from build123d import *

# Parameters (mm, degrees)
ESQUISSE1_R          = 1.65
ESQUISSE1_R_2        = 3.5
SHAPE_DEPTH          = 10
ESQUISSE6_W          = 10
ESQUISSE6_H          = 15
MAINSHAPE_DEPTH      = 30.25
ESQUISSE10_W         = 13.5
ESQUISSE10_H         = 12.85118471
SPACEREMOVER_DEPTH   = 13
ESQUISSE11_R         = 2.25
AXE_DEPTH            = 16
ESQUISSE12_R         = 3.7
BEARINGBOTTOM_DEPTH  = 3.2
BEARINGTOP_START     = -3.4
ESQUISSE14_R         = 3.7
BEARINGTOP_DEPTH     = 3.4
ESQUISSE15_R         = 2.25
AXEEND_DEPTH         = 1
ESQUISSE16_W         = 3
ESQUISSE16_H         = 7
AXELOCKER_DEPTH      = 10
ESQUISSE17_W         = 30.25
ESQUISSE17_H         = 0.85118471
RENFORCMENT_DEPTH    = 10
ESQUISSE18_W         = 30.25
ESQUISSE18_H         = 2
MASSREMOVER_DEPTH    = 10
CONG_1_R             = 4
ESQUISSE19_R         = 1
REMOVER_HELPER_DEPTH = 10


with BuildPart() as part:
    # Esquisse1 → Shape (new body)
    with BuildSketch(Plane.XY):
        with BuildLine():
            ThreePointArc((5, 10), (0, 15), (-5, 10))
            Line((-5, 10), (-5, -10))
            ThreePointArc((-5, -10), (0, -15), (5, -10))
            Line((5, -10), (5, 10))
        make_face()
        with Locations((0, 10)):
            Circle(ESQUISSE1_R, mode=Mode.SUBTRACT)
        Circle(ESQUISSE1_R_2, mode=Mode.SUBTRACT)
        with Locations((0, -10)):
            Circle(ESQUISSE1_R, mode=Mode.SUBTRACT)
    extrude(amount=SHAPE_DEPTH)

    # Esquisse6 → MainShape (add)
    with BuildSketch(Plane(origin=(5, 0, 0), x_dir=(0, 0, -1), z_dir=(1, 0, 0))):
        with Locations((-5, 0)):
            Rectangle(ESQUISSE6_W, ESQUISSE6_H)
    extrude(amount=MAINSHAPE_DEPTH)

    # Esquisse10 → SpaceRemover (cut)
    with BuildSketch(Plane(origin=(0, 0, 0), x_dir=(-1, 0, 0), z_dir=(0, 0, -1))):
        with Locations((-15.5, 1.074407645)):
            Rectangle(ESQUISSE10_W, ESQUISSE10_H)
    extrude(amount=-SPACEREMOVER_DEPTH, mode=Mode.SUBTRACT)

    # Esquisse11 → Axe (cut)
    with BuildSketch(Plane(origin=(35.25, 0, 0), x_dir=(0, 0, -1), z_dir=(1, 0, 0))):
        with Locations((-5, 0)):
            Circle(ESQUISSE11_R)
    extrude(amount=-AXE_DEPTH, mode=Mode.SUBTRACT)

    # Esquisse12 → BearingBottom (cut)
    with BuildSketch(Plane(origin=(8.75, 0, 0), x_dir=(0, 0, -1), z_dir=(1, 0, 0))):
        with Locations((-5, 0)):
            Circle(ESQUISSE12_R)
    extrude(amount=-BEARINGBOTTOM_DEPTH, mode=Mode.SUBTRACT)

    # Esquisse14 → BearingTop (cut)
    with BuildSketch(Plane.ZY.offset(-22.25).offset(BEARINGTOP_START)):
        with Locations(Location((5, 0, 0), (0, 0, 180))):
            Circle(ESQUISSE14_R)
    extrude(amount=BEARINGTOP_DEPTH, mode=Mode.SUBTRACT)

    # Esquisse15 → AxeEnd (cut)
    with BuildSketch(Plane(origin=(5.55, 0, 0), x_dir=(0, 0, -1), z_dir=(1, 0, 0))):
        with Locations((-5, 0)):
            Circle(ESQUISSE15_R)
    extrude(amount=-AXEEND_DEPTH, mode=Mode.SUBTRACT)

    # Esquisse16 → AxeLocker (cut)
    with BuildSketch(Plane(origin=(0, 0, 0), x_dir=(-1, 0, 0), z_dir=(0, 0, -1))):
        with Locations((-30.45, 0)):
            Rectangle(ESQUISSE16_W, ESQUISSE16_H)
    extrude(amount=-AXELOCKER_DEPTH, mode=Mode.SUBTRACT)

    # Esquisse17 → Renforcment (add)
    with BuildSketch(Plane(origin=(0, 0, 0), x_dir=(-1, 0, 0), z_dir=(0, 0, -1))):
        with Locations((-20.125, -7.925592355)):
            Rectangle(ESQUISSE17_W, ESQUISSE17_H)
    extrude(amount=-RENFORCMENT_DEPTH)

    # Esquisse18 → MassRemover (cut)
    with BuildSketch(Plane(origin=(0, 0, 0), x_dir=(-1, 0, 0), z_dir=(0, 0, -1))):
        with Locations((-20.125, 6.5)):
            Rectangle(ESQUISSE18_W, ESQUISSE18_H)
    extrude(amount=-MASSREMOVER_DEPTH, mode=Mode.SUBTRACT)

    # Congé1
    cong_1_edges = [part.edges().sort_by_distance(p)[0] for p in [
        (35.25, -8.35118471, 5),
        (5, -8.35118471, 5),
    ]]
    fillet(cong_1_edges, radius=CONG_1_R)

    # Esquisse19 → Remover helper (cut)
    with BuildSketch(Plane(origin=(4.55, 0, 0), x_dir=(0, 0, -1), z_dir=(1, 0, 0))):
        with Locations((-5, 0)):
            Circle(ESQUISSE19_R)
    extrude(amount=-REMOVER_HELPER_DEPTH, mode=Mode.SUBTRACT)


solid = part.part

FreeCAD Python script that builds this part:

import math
import FreeCAD as App
import Part
import Sketcher
Q = App.Units.Quantity


def edges_at(feature, points):
    """Names of the edges that pass closest to the given points."""
    edges = feature.Shape.Edges
    near = lambda p: min(range(len(edges)), key=lambda i: edges[i].distToShape(Part.Vertex(*p))[0])
    return sorted({f"Edge{near(p) + 1}" for p in points})

doc = App.newDocument("Part")
body = doc.addObject("PartDesign::Body", "Body")

sketch1 = body.newObject("Sketcher::SketchObject", "Sketch")
sketch1.AttachmentSupport = (doc.getObject("XY_Plane"), [""])
sketch1.MapMode = "FlatFace"
sketch1.addGeometry(Part.ArcOfCircle(Part.Circle(App.Vector(0, 10, 0), App.Vector(0, 0, 1), 5), math.radians(0), math.radians(180)), False)
sketch1.addGeometry(Part.LineSegment(App.Vector(-5, 10, 0), App.Vector(-5, -10, 0)), False)
sketch1.addGeometry(Part.ArcOfCircle(Part.Circle(App.Vector(0, -10, 0), App.Vector(0, 0, 1), 5), math.radians(180), math.radians(360)), False)
sketch1.addGeometry(Part.LineSegment(App.Vector(5, -10, 0), App.Vector(5, 10, 0)), False)
sketch1.addGeometry(Part.Circle(App.Vector(0, -10, 0), App.Vector(0, 0, 1), 1.65), False)
sketch1.addGeometry(Part.Circle(App.Vector(0, 0, 0), App.Vector(0, 0, 1), 3.5), False)
sketch1.addGeometry(Part.Circle(App.Vector(0, 10, 0), App.Vector(0, 0, 1), 1.65), False)
sketch1.addConstraint(Sketcher.Constraint("Tangent", 0, 2, 1, 1))
sketch1.addConstraint(Sketcher.Constraint("Tangent", 1, 2, 2, 1))
sketch1.addConstraint(Sketcher.Constraint("Tangent", 2, 2, 3, 1))
sketch1.addConstraint(Sketcher.Constraint("Tangent", 3, 2, 0, 1))
sketch1.addConstraint(Sketcher.Constraint("Vertical", 1))
sketch1.addConstraint(Sketcher.Constraint("Vertical", 3))
sketch1.addConstraint(Sketcher.Constraint("Coincident", 5, 3, -1, 1))
sketch1.addConstraint(Sketcher.Constraint("Coincident", 4, 3, 2, 3))
sketch1.addConstraint(Sketcher.Constraint("Coincident", 6, 3, 0, 3))
sketch1.addConstraint(Sketcher.Constraint("Equal", 4, 6))
sketch1.addConstraint(Sketcher.Constraint("Symmetric", 0, 3, 2, 3, -1, 1))
sketch1.addConstraint(Sketcher.Constraint("Diameter", 5, Q("7 mm")))
sketch1.addConstraint(Sketcher.Constraint("Radius", 0, Q("5 mm")))
sketch1.addConstraint(Sketcher.Constraint("Diameter", 4, Q("3.3 mm")))
sketch1.addConstraint(Sketcher.Constraint("DistanceY", 1, 2, 1, 1, Q("20 mm")))
pad1 = body.newObject("PartDesign::Pad", "Pad")
pad1.Profile = sketch1
pad1.Length = 10

sketch2 = body.newObject("Sketcher::SketchObject", "Sketch001")
sketch2.AttachmentSupport = (doc.getObject("YZ_Plane"), [""])
sketch2.MapMode = "FlatFace"
sketch2.AttachmentOffset = App.Placement(App.Vector(0, 0, 5), App.Rotation())
sketch2.addGeometry(Part.LineSegment(App.Vector(7.5, 10, 0), App.Vector(-7.5, 10, 0)), False)
sketch2.addGeometry(Part.LineSegment(App.Vector(-7.5, 10, 0), App.Vector(-7.5, 0, 0)), False)
sketch2.addGeometry(Part.LineSegment(App.Vector(-7.5, 0, 0), App.Vector(7.5, 0, 0)), False)
sketch2.addGeometry(Part.LineSegment(App.Vector(7.5, 0, 0), App.Vector(7.5, 10, 0)), False)
sketch2.addConstraint(Sketcher.Constraint("Coincident", 0, 2, 1, 1))
sketch2.addConstraint(Sketcher.Constraint("Coincident", 1, 2, 2, 1))
sketch2.addConstraint(Sketcher.Constraint("Coincident", 2, 2, 3, 1))
sketch2.addConstraint(Sketcher.Constraint("Coincident", 3, 2, 0, 1))
sketch2.addConstraint(Sketcher.Constraint("Horizontal", 0))
sketch2.addConstraint(Sketcher.Constraint("Vertical", 1))
sketch2.addConstraint(Sketcher.Constraint("Horizontal", 2))
sketch2.addConstraint(Sketcher.Constraint("Vertical", 3))
sketch2.addConstraint(Sketcher.Constraint("Symmetric", 1, 2, 2, 2, -1, 1))
sketch2.addConstraint(Sketcher.Constraint("DistanceX", 0, 2, 0, 1, Q("15 mm")))
sketch2.addConstraint(Sketcher.Constraint("DistanceY", 1, 2, 1, 1, Q("10 mm")))
pad2 = body.newObject("PartDesign::Pad", "Pad001")
pad2.Profile = sketch2
pad2.Length = 30.25

sketch3 = body.newObject("Sketcher::SketchObject", "Sketch002")
sketch3.AttachmentSupport = (doc.getObject("XY_Plane"), [""])
sketch3.MapMode = "FlatFace"
sketch3.addGeometry(Part.LineSegment(App.Vector(22.25, 7.5, 0), App.Vector(22.25, -5.351185, 0)), False)
sketch3.addGeometry(Part.LineSegment(App.Vector(22.25, -5.351185, 0), App.Vector(8.75, -5.351185, 0)), False)
sketch3.addGeometry(Part.LineSegment(App.Vector(8.75, -5.351185, 0), App.Vector(8.75, 7.5, 0)), False)
sketch3.addGeometry(Part.LineSegment(App.Vector(8.75, 7.5, 0), App.Vector(22.25, 7.5, 0)), False)
sketch3.addConstraint(Sketcher.Constraint("Coincident", 0, 2, 1, 1))
sketch3.addConstraint(Sketcher.Constraint("Coincident", 1, 2, 2, 1))
sketch3.addConstraint(Sketcher.Constraint("Coincident", 2, 2, 3, 1))
sketch3.addConstraint(Sketcher.Constraint("Coincident", 3, 2, 0, 1))
sketch3.addConstraint(Sketcher.Constraint("Vertical", 0))
sketch3.addConstraint(Sketcher.Constraint("Horizontal", 1))
sketch3.addConstraint(Sketcher.Constraint("Vertical", 2))
sketch3.addConstraint(Sketcher.Constraint("Horizontal", 3))
sketch3.addConstraint(Sketcher.Constraint("DistanceX", 1, 2, 1, 1, Q("13.5 mm")))
sketch3.addConstraint(Sketcher.Constraint("DistanceY", -1, 1, 2, 2, Q("7.5 mm")))
sketch3.addConstraint(Sketcher.Constraint("DistanceX", -1, 1, 0, 2, Q("22.25 mm")))
sketch3.addConstraint(Sketcher.Constraint("DistanceY", 0, 2, 0, 1, Q("12.851185 mm")))
pocket1 = body.newObject("PartDesign::Pocket", "Pocket")
pocket1.Profile = sketch3
pocket1.Length = 13
pocket1.Reversed = True

sketch4 = body.newObject("Sketcher::SketchObject", "Sketch003")
sketch4.AttachmentSupport = (doc.getObject("YZ_Plane"), [""])
sketch4.MapMode = "FlatFace"
sketch4.AttachmentOffset = App.Placement(App.Vector(0, 0, 35.25), App.Rotation())
sketch4.addGeometry(Part.Circle(App.Vector(0, 5, 0), App.Vector(0, 0, 1), 2.25), False)
sketch4.addConstraint(Sketcher.Constraint("PointOnObject", 0, 3, -2))
sketch4.addConstraint(Sketcher.Constraint("Diameter", 0, Q("4.5 mm")))
sketch4.addConstraint(Sketcher.Constraint("DistanceY", -1, 1, 0, 3, Q("5 mm")))
pocket2 = body.newObject("PartDesign::Pocket", "Pocket001")
pocket2.Profile = sketch4
pocket2.Length = 16

sketch5 = body.newObject("Sketcher::SketchObject", "Sketch004")
sketch5.AttachmentSupport = (doc.getObject("YZ_Plane"), [""])
sketch5.MapMode = "FlatFace"
sketch5.AttachmentOffset = App.Placement(App.Vector(0, 0, 8.75), App.Rotation())
sketch5.addGeometry(Part.Circle(App.Vector(0, 5, 0), App.Vector(0, 0, 1), 3.7), False)
sketch5.addConstraint(Sketcher.Constraint("PointOnObject", 0, 3, -2))
sketch5.addConstraint(Sketcher.Constraint("Diameter", 0, Q("7.4 mm")))
sketch5.addConstraint(Sketcher.Constraint("DistanceY", -1, 1, 0, 3, Q("5 mm")))
pocket3 = body.newObject("PartDesign::Pocket", "Pocket002")
pocket3.Profile = sketch5
pocket3.Length = 3.2

sketch6 = body.newObject("Sketcher::SketchObject", "Sketch005")
sketch6.AttachmentSupport = (doc.getObject("YZ_Plane"), [""])
sketch6.MapMode = "FlatFace"
sketch6.AttachmentOffset = App.Placement(App.Vector(0, 0, 25.65), App.Rotation())
sketch6.addGeometry(Part.Circle(App.Vector(0, 5, 0), App.Vector(0, 0, 1), 3.7), False)
sketch6.addConstraint(Sketcher.Constraint("PointOnObject", 0, 3, -2))
sketch6.addConstraint(Sketcher.Constraint("Diameter", 0, Q("7.4 mm")))
sketch6.addConstraint(Sketcher.Constraint("DistanceY", -1, 1, 0, 3, Q("5 mm")))
pocket4 = body.newObject("PartDesign::Pocket", "Pocket003")
pocket4.Profile = sketch6
pocket4.Length = 3.4

sketch7 = body.newObject("Sketcher::SketchObject", "Sketch006")
sketch7.AttachmentSupport = (doc.getObject("YZ_Plane"), [""])
sketch7.MapMode = "FlatFace"
sketch7.AttachmentOffset = App.Placement(App.Vector(0, 0, 5.55), App.Rotation())
sketch7.addGeometry(Part.Circle(App.Vector(0, 5, 0), App.Vector(0, 0, 1), 2.25), False)
sketch7.addConstraint(Sketcher.Constraint("PointOnObject", 0, 3, -2))
sketch7.addConstraint(Sketcher.Constraint("Diameter", 0, Q("4.5 mm")))
sketch7.addConstraint(Sketcher.Constraint("DistanceY", -1, 1, 0, 3, Q("5 mm")))
pocket5 = body.newObject("PartDesign::Pocket", "Pocket004")
pocket5.Profile = sketch7
pocket5.Length = 1

sketch8 = body.newObject("Sketcher::SketchObject", "Sketch007")
sketch8.AttachmentSupport = (doc.getObject("XY_Plane"), [""])
sketch8.MapMode = "FlatFace"
sketch8.addGeometry(Part.LineSegment(App.Vector(31.95, 3.5, 0), App.Vector(31.95, -3.5, 0)), False)
sketch8.addGeometry(Part.LineSegment(App.Vector(31.95, -3.5, 0), App.Vector(28.95, -3.5, 0)), False)
sketch8.addGeometry(Part.LineSegment(App.Vector(28.95, -3.5, 0), App.Vector(28.95, 3.5, 0)), False)
sketch8.addGeometry(Part.LineSegment(App.Vector(28.95, 3.5, 0), App.Vector(31.95, 3.5, 0)), False)
sketch8.addConstraint(Sketcher.Constraint("Coincident", 0, 2, 1, 1))
sketch8.addConstraint(Sketcher.Constraint("Coincident", 1, 2, 2, 1))
sketch8.addConstraint(Sketcher.Constraint("Coincident", 2, 2, 3, 1))
sketch8.addConstraint(Sketcher.Constraint("Coincident", 3, 2, 0, 1))
sketch8.addConstraint(Sketcher.Constraint("Vertical", 0))
sketch8.addConstraint(Sketcher.Constraint("Horizontal", 1))
sketch8.addConstraint(Sketcher.Constraint("Vertical", 2))
sketch8.addConstraint(Sketcher.Constraint("Horizontal", 3))
sketch8.addConstraint(Sketcher.Constraint("DistanceX", 1, 2, 1, 1, Q("3 mm")))
sketch8.addConstraint(Sketcher.Constraint("DistanceY", 0, 2, 0, 1, Q("7 mm")))
sketch8.addConstraint(Sketcher.Constraint("DistanceY", 0, 2, -1, 1, Q("3.5 mm")))
sketch8.addConstraint(Sketcher.Constraint("DistanceX", -1, 1, 0, 2, Q("31.95 mm")))
pocket6 = body.newObject("PartDesign::Pocket", "Pocket005")
pocket6.Profile = sketch8
pocket6.Length = 10
pocket6.Reversed = True

sketch9 = body.newObject("Sketcher::SketchObject", "Sketch008")
sketch9.AttachmentSupport = (doc.getObject("XY_Plane"), [""])
sketch9.MapMode = "FlatFace"
sketch9.addGeometry(Part.LineSegment(App.Vector(35.25, -7.5, 0), App.Vector(35.25, -8.351185, 0)), False)
sketch9.addGeometry(Part.LineSegment(App.Vector(35.25, -8.351185, 0), App.Vector(5, -8.351185, 0)), False)
sketch9.addGeometry(Part.LineSegment(App.Vector(5, -8.351185, 0), App.Vector(5, -7.5, 0)), False)
sketch9.addGeometry(Part.LineSegment(App.Vector(5, -7.5, 0), App.Vector(35.25, -7.5, 0)), False)
sketch9.addConstraint(Sketcher.Constraint("Coincident", 0, 2, 1, 1))
sketch9.addConstraint(Sketcher.Constraint("Coincident", 1, 2, 2, 1))
sketch9.addConstraint(Sketcher.Constraint("Coincident", 2, 2, 3, 1))
sketch9.addConstraint(Sketcher.Constraint("Coincident", 3, 2, 0, 1))
sketch9.addConstraint(Sketcher.Constraint("Vertical", 0))
sketch9.addConstraint(Sketcher.Constraint("Horizontal", 1))
sketch9.addConstraint(Sketcher.Constraint("Vertical", 2))
sketch9.addConstraint(Sketcher.Constraint("Horizontal", 3))
sketch9.addConstraint(Sketcher.Constraint("DistanceX", -1, 1, 1, 2, Q("5 mm")))
sketch9.addConstraint(Sketcher.Constraint("DistanceX", 1, 2, 1, 1, Q("30.25 mm")))
sketch9.addConstraint(Sketcher.Constraint("DistanceY", 2, 2, -1, 1, Q("7.5 mm")))
sketch9.addConstraint(Sketcher.Constraint("DistanceY", 0, 2, 0, 1, Q("0.851185 mm")))
pad3 = body.newObject("PartDesign::Pad", "Pad002")
pad3.Profile = sketch9
pad3.Length = 10

sketch10 = body.newObject("Sketcher::SketchObject", "Sketch009")
sketch10.AttachmentSupport = (doc.getObject("XY_Plane"), [""])
sketch10.MapMode = "FlatFace"
sketch10.addGeometry(Part.LineSegment(App.Vector(35.25, 7.5, 0), App.Vector(35.25, 5.5, 0)), False)
sketch10.addGeometry(Part.LineSegment(App.Vector(35.25, 5.5, 0), App.Vector(5, 5.5, 0)), False)
sketch10.addGeometry(Part.LineSegment(App.Vector(5, 5.5, 0), App.Vector(5, 7.5, 0)), False)
sketch10.addGeometry(Part.LineSegment(App.Vector(5, 7.5, 0), App.Vector(35.25, 7.5, 0)), False)
sketch10.addConstraint(Sketcher.Constraint("Coincident", 0, 2, 1, 1))
sketch10.addConstraint(Sketcher.Constraint("Coincident", 1, 2, 2, 1))
sketch10.addConstraint(Sketcher.Constraint("Coincident", 2, 2, 3, 1))
sketch10.addConstraint(Sketcher.Constraint("Coincident", 3, 2, 0, 1))
sketch10.addConstraint(Sketcher.Constraint("Vertical", 0))
sketch10.addConstraint(Sketcher.Constraint("Horizontal", 1))
sketch10.addConstraint(Sketcher.Constraint("Vertical", 2))
sketch10.addConstraint(Sketcher.Constraint("Horizontal", 3))
sketch10.addConstraint(Sketcher.Constraint("DistanceY", 0, 2, 0, 1, Q("2 mm")))
sketch10.addConstraint(Sketcher.Constraint("DistanceX", -1, 1, 1, 2, Q("5 mm")))
sketch10.addConstraint(Sketcher.Constraint("DistanceX", 1, 2, 1, 1, Q("30.25 mm")))
sketch10.addConstraint(Sketcher.Constraint("DistanceY", -1, 1, 0, 2, Q("5.5 mm")))
pocket7 = body.newObject("PartDesign::Pocket", "Pocket006")
pocket7.Profile = sketch10
pocket7.Length = 10
pocket7.Reversed = True
doc.recompute()

fillet = body.newObject("PartDesign::Fillet", "Fillet")
fillet.Base = (pocket7, edges_at(pocket7, [(35.25, -8.351, 5), (5, -8.351, 5)]))
fillet.Radius = 4

sketch11 = body.newObject("Sketcher::SketchObject", "Sketch010")
sketch11.AttachmentSupport = (doc.getObject("YZ_Plane"), [""])
sketch11.MapMode = "FlatFace"
sketch11.AttachmentOffset = App.Placement(App.Vector(0, 0, 4.55), App.Rotation())
sketch11.addGeometry(Part.Circle(App.Vector(0, 5, 0), App.Vector(0, 0, 1), 1), False)
sketch11.addConstraint(Sketcher.Constraint("PointOnObject", 0, 3, -2))
sketch11.addConstraint(Sketcher.Constraint("Diameter", 0, Q("2 mm")))
sketch11.addConstraint(Sketcher.Constraint("DistanceY", -1, 1, 0, 3, Q("5 mm")))
pocket8 = body.newObject("PartDesign::Pocket", "Pocket007")
pocket8.Profile = sketch11
pocket8.Length = 10

doc.recompute()
